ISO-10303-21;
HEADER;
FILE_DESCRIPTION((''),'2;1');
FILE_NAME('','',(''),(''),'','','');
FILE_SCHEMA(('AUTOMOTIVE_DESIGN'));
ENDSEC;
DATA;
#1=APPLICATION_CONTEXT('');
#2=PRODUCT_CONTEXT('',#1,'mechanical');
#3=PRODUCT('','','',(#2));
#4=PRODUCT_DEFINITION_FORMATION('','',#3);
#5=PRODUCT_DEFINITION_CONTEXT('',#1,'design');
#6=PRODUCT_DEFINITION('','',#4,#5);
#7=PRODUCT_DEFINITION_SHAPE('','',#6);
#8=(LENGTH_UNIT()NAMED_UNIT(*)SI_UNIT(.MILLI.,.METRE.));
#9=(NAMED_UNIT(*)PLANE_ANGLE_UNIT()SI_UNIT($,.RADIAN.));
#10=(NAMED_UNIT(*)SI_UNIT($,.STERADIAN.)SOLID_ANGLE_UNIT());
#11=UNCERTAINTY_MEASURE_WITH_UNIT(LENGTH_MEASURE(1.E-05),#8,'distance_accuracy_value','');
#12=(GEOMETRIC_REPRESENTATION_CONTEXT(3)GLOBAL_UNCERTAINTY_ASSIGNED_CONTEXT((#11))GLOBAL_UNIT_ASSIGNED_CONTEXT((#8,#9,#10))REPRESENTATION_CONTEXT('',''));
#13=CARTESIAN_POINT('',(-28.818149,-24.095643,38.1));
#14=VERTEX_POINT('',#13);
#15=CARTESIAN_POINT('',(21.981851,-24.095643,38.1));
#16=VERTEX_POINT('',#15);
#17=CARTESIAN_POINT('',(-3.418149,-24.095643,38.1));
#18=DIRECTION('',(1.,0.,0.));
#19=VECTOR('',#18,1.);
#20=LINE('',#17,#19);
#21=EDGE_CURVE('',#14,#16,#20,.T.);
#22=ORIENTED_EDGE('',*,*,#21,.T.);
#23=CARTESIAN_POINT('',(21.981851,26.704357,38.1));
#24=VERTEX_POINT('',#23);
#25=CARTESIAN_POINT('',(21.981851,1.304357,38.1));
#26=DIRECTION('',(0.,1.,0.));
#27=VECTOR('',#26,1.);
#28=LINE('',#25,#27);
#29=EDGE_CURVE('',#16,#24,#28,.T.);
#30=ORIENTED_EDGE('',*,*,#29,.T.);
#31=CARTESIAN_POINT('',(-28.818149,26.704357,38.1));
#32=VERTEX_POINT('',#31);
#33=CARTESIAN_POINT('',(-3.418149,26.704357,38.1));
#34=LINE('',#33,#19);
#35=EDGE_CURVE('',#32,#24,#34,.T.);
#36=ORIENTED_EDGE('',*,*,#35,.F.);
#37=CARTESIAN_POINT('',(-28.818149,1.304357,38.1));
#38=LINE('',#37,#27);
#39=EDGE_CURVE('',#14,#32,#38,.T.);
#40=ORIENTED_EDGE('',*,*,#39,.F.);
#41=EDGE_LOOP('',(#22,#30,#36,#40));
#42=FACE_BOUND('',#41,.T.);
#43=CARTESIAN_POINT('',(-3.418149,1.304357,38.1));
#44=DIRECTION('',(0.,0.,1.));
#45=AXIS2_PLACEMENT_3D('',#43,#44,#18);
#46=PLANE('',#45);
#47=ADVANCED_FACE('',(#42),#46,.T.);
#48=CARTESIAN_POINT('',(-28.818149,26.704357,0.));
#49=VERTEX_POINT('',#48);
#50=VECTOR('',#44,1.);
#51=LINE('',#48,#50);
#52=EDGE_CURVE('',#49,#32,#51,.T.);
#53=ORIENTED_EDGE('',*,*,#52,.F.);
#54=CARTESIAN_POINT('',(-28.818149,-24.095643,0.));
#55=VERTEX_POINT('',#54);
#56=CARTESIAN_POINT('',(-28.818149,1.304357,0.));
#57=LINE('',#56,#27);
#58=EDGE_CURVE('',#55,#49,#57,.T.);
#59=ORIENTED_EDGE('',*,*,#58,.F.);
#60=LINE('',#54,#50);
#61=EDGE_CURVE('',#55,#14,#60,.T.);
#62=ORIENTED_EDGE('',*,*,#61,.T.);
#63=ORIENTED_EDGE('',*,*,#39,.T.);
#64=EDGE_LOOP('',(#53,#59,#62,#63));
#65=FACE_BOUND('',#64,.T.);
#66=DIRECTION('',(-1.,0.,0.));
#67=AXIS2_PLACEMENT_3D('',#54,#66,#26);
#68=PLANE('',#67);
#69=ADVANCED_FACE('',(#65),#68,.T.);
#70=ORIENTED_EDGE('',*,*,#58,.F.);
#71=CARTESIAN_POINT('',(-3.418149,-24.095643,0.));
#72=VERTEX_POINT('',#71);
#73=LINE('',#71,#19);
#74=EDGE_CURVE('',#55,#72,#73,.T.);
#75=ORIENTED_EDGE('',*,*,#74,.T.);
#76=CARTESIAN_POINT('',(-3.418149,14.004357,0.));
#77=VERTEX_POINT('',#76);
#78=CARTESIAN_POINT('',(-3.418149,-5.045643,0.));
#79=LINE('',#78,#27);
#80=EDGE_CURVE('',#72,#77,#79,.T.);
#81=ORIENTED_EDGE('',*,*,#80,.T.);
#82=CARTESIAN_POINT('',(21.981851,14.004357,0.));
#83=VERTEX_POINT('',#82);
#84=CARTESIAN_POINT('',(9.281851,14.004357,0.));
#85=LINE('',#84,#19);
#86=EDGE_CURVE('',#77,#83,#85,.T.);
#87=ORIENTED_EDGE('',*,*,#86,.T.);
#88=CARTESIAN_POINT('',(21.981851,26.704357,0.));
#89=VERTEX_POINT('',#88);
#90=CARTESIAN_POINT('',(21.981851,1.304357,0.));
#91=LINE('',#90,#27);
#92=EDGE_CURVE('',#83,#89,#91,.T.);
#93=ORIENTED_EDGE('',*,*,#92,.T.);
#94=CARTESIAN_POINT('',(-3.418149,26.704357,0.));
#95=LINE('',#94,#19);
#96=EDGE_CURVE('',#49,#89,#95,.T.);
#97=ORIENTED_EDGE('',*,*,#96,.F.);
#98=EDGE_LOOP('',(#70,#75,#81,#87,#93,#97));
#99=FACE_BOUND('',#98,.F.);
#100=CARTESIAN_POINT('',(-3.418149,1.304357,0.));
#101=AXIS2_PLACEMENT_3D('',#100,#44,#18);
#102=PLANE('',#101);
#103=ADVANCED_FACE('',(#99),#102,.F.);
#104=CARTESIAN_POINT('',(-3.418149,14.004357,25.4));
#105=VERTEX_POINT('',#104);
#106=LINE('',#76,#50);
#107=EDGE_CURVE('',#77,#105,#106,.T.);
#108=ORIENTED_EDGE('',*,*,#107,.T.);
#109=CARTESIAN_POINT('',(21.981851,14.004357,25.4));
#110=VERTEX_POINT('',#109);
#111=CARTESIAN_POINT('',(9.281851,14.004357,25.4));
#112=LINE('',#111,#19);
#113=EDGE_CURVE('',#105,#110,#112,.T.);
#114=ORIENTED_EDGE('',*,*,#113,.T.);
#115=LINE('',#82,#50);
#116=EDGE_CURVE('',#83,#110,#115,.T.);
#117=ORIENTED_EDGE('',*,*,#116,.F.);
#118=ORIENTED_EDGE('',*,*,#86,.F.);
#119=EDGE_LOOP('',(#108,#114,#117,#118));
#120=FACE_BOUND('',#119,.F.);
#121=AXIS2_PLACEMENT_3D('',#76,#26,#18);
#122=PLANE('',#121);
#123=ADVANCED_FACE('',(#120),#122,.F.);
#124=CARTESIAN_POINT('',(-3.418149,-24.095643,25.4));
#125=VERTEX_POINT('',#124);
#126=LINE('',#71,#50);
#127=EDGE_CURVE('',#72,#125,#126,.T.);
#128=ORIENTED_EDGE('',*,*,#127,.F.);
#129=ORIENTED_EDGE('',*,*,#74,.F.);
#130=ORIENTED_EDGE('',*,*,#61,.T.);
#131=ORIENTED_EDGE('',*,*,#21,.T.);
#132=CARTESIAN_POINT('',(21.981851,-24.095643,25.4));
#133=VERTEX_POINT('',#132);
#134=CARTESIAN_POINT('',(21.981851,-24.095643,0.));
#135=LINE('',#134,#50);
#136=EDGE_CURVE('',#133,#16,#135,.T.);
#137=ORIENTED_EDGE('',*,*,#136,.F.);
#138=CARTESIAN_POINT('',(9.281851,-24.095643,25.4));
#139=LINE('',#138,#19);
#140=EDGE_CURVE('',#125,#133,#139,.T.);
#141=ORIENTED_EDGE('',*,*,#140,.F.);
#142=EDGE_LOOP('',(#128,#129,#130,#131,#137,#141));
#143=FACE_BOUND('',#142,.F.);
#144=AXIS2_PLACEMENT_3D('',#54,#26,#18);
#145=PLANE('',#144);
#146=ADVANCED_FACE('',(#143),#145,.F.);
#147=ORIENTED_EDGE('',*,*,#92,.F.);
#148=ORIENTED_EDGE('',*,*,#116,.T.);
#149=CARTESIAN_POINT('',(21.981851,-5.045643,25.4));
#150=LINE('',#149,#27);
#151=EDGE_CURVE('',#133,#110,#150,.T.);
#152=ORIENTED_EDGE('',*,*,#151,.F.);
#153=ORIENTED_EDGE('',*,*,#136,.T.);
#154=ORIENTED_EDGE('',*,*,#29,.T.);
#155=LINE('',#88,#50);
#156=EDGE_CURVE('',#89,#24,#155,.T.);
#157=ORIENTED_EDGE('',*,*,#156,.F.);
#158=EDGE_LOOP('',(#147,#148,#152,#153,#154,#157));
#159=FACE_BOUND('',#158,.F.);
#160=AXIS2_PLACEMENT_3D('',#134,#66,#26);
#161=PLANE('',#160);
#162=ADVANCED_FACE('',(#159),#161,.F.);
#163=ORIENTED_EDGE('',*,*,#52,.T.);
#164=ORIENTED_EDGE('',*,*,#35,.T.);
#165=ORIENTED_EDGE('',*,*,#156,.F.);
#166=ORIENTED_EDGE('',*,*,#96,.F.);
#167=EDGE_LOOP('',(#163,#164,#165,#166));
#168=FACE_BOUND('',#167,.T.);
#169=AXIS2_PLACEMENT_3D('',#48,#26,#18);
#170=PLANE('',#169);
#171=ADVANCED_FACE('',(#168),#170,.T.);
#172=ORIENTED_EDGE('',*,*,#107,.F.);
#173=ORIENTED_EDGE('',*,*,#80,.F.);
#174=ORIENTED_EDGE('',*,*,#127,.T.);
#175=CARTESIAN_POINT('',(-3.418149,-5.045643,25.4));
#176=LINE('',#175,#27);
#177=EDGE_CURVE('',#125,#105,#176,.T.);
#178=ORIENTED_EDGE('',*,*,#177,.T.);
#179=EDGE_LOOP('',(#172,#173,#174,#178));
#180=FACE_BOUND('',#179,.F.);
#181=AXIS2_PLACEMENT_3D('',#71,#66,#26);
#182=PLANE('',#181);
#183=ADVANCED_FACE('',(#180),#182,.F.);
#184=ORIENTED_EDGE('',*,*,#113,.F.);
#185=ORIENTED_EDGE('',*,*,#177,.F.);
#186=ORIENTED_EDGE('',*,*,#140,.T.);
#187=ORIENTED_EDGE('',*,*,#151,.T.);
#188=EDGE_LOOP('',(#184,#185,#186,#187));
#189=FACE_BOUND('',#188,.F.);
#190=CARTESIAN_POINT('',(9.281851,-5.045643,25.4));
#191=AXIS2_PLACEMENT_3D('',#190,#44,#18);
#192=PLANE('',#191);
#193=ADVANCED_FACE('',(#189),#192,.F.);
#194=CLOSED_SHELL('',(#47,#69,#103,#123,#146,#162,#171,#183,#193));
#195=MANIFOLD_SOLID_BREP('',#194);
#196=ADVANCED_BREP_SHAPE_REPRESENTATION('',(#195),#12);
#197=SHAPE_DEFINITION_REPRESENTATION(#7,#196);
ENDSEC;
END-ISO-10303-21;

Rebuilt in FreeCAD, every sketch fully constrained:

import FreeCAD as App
import Part
import Sketcher

V = App.Vector
Q = App.Units.Quantity

doc = App.newDocument("Part")
body = doc.addObject("PartDesign::Body", "Body")

# Sketch on XY plane
sketch1 = body.newObject("Sketcher::SketchObject", "Sketch")
sketch1.AttachmentSupport = (doc.getObject("XY_Plane"), [""])
sketch1.MapMode = "FlatFace"
sketch1.addGeometry([
    Part.LineSegment(V(-29, 27, 0), V(-29, -24, 0)),
    Part.LineSegment(V(-29, -24, 0), V(22, -24, 0)),
    Part.LineSegment(V(22, -24, 0), V(22, 27, 0)),
    Part.LineSegment(V(22, 27, 0), V(-29, 27, 0)),
], False)
sketch1.addConstraint([
    Sketcher.Constraint("Coincident", 0, 2, 1, 1),
    Sketcher.Constraint("Coincident", 1, 2, 2, 1),
    Sketcher.Constraint("Coincident", 2, 2, 3, 1),
    Sketcher.Constraint("Coincident", 3, 2, 0, 1),
    Sketcher.Constraint("Vertical", 0),
    Sketcher.Constraint("Horizontal", 1),
    Sketcher.Constraint("Vertical", 2),
    Sketcher.Constraint("Horizontal", 3),
    Sketcher.Constraint("Equal", 3, 0),
    Sketcher.Constraint("DistanceX", 1, 1, 1, 2, Q("2 in")),
    Sketcher.Constraint("DistanceX", 0, 2, -1, 1, Q("28.818149 mm")),
    Sketcher.Constraint("DistanceY", 0, 2, -1, 1, Q("24.095643 mm")),
])
pad1 = body.newObject("PartDesign::Pad", "Pad")
pad1.Profile = sketch1
pad1.Length = Q("1.5 in")

# Sketch on XY plane
sketch2 = body.newObject("Sketcher::SketchObject", "Sketch001")
sketch2.AttachmentSupport = (doc.getObject("XY_Plane"), [""])
sketch2.MapMode = "FlatFace"
sketch2.addGeometry([
    Part.LineSegment(V(-3, 14, 0), V(-3, -24, 0)),
    Part.LineSegment(V(-3, -24, 0), V(22, -24, 0)),
    Part.LineSegment(V(22, -24, 0), V(22, 14, 0)),
    Part.LineSegment(V(22, 14, 0), V(-3, 14, 0)),
], False)
sketch2.addConstraint([
    Sketcher.Constraint("Coincident", 0, 2, 1, 1),
    Sketcher.Constraint("Coincident", 1, 2, 2, 1),
    Sketcher.Constraint("Coincident", 2, 2, 3, 1),
    Sketcher.Constraint("Coincident", 3, 2, 0, 1),
    Sketcher.Constraint("Vertical", 0),
    Sketcher.Constraint("Horizontal", 1),
    Sketcher.Constraint("Vertical", 2),
    Sketcher.Constraint("Horizontal", 3),
    Sketcher.Constraint("DistanceX", 1, 1, 1, 2, Q("1 in")),
    Sketcher.Constraint("DistanceY", 0, 2, 0, 1, Q("1.5 in")),
    Sketcher.Constraint("DistanceX", 0, 2, -1, 1, Q("3.418149 mm")),
    Sketcher.Constraint("DistanceY", 0, 2, -1, 1, Q("24.095643 mm")),
])
pocket1 = body.newObject("PartDesign::Pocket", "Pocket")
pocket1.Profile = sketch2
pocket1.Length = Q("1 in")
pocket1.Reversed = True

doc.recompute()
